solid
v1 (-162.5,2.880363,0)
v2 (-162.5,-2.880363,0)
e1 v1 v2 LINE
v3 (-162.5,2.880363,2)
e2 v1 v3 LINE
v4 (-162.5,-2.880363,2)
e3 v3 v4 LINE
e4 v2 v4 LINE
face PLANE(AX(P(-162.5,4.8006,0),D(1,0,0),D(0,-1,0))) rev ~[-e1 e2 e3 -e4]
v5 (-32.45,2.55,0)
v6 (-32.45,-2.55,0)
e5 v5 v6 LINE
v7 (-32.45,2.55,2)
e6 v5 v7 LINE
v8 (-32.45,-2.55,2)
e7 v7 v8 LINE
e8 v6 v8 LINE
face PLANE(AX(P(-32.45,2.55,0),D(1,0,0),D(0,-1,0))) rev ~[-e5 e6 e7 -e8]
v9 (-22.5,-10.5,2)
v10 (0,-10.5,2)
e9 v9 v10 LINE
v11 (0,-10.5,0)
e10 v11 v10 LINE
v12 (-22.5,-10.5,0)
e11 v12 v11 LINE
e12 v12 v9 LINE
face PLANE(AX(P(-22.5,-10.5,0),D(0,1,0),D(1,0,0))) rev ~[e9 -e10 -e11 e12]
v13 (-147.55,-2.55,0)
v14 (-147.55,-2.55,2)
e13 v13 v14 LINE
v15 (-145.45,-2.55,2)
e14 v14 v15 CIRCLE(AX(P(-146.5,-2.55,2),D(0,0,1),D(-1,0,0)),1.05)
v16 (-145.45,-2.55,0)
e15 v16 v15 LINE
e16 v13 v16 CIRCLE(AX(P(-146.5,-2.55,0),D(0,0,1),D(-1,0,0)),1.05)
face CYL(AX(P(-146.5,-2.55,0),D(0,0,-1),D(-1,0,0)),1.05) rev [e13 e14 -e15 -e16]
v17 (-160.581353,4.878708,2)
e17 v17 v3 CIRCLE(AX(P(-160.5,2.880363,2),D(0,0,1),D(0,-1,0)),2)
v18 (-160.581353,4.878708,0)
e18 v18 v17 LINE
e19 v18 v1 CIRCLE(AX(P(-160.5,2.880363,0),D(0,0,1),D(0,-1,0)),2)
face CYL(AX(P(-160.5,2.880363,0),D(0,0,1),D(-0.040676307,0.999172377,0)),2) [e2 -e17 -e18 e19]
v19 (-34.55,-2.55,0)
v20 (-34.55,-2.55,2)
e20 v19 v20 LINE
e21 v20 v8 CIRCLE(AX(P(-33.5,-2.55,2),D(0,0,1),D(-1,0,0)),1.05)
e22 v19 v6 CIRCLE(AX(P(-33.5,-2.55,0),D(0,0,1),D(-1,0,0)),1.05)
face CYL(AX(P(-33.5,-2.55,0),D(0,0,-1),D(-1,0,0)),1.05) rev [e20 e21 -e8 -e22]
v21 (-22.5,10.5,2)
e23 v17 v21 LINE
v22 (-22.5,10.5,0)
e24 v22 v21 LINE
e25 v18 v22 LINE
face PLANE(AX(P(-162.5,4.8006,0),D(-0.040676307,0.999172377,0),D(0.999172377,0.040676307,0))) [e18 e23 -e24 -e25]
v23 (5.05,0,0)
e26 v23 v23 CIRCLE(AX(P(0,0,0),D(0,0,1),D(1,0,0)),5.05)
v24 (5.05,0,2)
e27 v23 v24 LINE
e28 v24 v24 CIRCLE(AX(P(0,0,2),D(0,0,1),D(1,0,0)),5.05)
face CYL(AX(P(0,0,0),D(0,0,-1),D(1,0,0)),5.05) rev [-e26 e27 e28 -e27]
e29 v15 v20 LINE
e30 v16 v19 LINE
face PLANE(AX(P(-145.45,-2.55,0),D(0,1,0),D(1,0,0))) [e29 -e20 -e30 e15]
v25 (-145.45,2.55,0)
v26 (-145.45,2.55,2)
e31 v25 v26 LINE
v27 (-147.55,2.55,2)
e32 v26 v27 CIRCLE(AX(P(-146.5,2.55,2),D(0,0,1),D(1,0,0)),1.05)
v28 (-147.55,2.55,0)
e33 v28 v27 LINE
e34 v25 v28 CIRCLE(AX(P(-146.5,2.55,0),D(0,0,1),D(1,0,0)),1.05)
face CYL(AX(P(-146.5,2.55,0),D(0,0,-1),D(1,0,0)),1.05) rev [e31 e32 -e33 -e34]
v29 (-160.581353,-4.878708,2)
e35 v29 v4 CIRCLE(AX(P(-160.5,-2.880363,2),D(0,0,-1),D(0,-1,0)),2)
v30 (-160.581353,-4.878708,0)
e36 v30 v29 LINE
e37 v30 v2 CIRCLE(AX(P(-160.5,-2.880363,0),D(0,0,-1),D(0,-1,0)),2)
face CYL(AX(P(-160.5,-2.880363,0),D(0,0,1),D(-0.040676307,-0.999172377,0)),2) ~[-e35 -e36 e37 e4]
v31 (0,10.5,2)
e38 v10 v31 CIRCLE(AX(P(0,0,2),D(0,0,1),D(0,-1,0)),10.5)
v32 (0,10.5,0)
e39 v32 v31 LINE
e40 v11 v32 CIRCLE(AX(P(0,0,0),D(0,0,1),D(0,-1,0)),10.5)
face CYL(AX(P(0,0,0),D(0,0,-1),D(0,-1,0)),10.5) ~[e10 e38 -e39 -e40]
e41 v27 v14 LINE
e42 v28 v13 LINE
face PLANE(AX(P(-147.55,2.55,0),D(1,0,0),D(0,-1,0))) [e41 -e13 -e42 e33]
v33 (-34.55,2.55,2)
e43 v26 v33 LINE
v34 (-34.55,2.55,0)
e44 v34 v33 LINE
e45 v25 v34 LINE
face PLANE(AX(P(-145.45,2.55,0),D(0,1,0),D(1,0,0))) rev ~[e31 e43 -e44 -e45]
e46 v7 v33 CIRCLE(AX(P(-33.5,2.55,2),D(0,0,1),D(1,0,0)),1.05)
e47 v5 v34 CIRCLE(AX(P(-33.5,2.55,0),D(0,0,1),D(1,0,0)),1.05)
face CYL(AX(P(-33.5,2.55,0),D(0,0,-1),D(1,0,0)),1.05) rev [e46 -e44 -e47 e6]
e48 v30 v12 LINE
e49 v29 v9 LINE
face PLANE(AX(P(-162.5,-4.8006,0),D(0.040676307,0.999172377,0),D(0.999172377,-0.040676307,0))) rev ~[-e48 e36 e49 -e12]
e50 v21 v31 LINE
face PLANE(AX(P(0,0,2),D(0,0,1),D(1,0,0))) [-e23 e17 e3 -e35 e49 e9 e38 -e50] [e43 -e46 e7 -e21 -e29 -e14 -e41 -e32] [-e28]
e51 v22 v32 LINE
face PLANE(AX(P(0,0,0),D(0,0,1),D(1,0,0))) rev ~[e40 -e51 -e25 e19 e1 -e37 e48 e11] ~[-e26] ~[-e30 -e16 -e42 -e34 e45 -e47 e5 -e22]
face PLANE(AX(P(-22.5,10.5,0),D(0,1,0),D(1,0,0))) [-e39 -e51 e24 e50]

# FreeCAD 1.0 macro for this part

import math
import FreeCAD as App
import Part
import Sketcher
from FreeCAD import Vector
Q = App.Units.Quantity


def edges_at(feature, points):
    """Names of the edges that pass closest to the given points."""
    edges = feature.Shape.Edges
    near = lambda p: min(range(len(edges)), key=lambda i: edges[i].distToShape(Part.Vertex(*p))[0])
    return sorted({f"Edge{near(p) + 1}" for p in points})

doc = App.newDocument("Part")
body = doc.addObject("PartDesign::Body", "Body")

# Sketch on XY plane
sketch1 = body.newObject("Sketcher::SketchObject", "Sketch")
sketch1.AttachmentSupport = (doc.getObject("XY_Plane"), [""])
sketch1.MapMode = "FlatFace"
sketch1.addGeometry([
    Part.LineSegment(Vector(-22.5, 10.5, 0), Vector(-162.5, 4.8, 0)),  # 0
    Part.LineSegment(Vector(-162.5, 4.8, 0), Vector(-162.5, -4.8, 0)),  # 1
    Part.LineSegment(Vector(-162.5, -4.8, 0), Vector(-22.5, -10.5, 0)),  # 2
    Part.LineSegment(Vector(-22.5, -10.5, 0), Vector(0, -10.5, 0)),  # 3
    Part.ArcOfCircle(Part.Circle(Vector(0, 0, 0), Vector(0, 0, 1), 10.5), math.radians(-90), math.radians(90)),  # 4
    Part.LineSegment(Vector(0, 10.5, 0), Vector(-22.5, 10.5, 0)),  # 5
    Part.Circle(Vector(0, -8.5, 0), Vector(0, 0, 1), 1.4),  # 6
    Part.Circle(Vector(-157.5, 0, 0), Vector(0, 0, 1), 1.6),  # 7
    Part.LineSegment(Vector(-147.6, -2.5, 0), Vector(-147.6, 2.5, 0)),  # 8
    Part.ArcOfCircle(Part.Circle(Vector(-146.5, 2.5, 0), Vector(0, 0, 1), 1.1), math.radians(0), math.radians(180)),  # 9
    Part.LineSegment(Vector(-145.4, 2.5, 0), Vector(-34.5, 2.5, 0)),  # 10
    Part.ArcOfCircle(Part.Circle(Vector(-33.5, 2.5, 0), Vector(0, 0, 1), 1), math.radians(0), math.radians(180)),  # 11
    Part.LineSegment(Vector(-32.5, 2.5, 0), Vector(-32.5, -2.5, 0)),  # 12
    Part.ArcOfCircle(Part.Circle(Vector(-33.5, -2.5, 0), Vector(0, 0, 1), 1), math.radians(180), math.radians(360)),  # 13
    Part.LineSegment(Vector(-34.5, -2.5, 0), Vector(-145.4, -2.5, 0)),  # 14
    Part.ArcOfCircle(Part.Circle(Vector(-146.5, -2.5, 0), Vector(0, 0, 1), 1.1), math.radians(180), math.radians(360)),  # 15
    Part.Circle(Vector(-22.5, 0, 0), Vector(0, 0, 1), 1.6),  # 16
    Part.Circle(Vector(-8.5, 0, 0), Vector(0, 0, 1), 1.4),  # 17
    Part.Circle(Vector(0, 0, 0), Vector(0, 0, 1), 5),  # 18
    Part.Circle(Vector(8.5, 0, 0), Vector(0, 0, 1), 1.4),  # 19
    Part.Circle(Vector(0, 8.5, 0), Vector(0, 0, 1), 1.4),  # 20
], False)
sketch1.addConstraint([
    Sketcher.Constraint("Coincident", 0, 2, 1, 1),
    Sketcher.Constraint("Coincident", 1, 2, 2, 1),
    Sketcher.Constraint("Coincident", 2, 2, 3, 1),
    Sketcher.Constraint("Tangent", 3, 2, 4, 1),
    Sketcher.Constraint("Tangent", 4, 2, 5, 1),
    Sketcher.Constraint("Coincident", 5, 2, 0, 1),
    Sketcher.Constraint("Tangent", 8, 2, 9, 2),
    Sketcher.Constraint("Coincident", 9, 1, 10, 1),
    Sketcher.Constraint("Coincident", 10, 2, 11, 2),
    Sketcher.Constraint("Tangent", 11, 1, 12, 1),
    Sketcher.Constraint("Tangent", 12, 2, 13, 2),
    Sketcher.Constraint("Coincident", 13, 1, 14, 1),
    Sketcher.Constraint("Coincident", 14, 2, 15, 2),
    Sketcher.Constraint("Tangent", 15, 1, 8, 1),
    Sketcher.Constraint("Vertical", 1),
    Sketcher.Constraint("Horizontal", 3),
    Sketcher.Constraint("Horizontal", 5),
    Sketcher.Constraint("Vertical", 8),
    Sketcher.Constraint("Horizontal", 10),
    Sketcher.Constraint("Vertical", 12),
    Sketcher.Constraint("Horizontal", 14),
    Sketcher.Constraint("Coincident", 4, 3, -1, 1),
    Sketcher.Constraint("Coincident", 18, 3, -1, 1),
    Sketcher.Constraint("Equal", 9, 11),
    Sketcher.Constraint("Equal", 11, 13),
    Sketcher.Constraint("Equal", 13, 15),
    Sketcher.Constraint("Equal", 7, 16),
    Sketcher.Constraint("Equal", 6, 17),
    Sketcher.Constraint("Equal", 17, 19),
    Sketcher.Constraint("Equal", 19, 20),
    Sketcher.Constraint("Symmetric", 17, 3, 19, 3, -1, 1),
    Sketcher.Constraint("Symmetric", 6, 3, 20, 3, -1, 1),
    Sketcher.Constraint("PointOnObject", 6, 3, -2),
    Sketcher.Constraint("PointOnObject", 7, 3, -1),
    Sketcher.Constraint("PointOnObject", 16, 3, -1),
    Sketcher.Constraint("PointOnObject", 17, 3, -1),
    Sketcher.Constraint("Horizontal", 9, 3, 11, 3),
    Sketcher.Constraint("Horizontal", 13, 3, 15, 3),
    Sketcher.Constraint("Horizontal", 8, 2, 9, 1),
    Sketcher.Constraint("Horizontal", 12, 2, 13, 1),
    Sketcher.Constraint("Vertical", 16, 3, 2, 2),
    Sketcher.Constraint("Vertical", 2, 2, 5, 2),
    Sketcher.Constraint("Equal", 0, 2),
    Sketcher.Constraint("Diameter", 6, Q("2.7 mm")),
    Sketcher.Constraint("Diameter", 7, Q("3.1 mm")),
    Sketcher.Constraint("Diameter", 18, Q("10.1 mm")),
    Sketcher.Constraint("Radius", 4, Q("10.5 mm")),
    Sketcher.Constraint("Radius", 9, Q("1.05 mm")),
    Sketcher.Constraint("DistanceX", 0, 2, 7, 3, Q("5 mm")),
    Sketcher.Constraint("DistanceY", 6, 3, -1, 1, Q("8.5 mm")),
    Sketcher.Constraint("DistanceX", 17, 3, -1, 1, Q("8.5 mm")),
    Sketcher.Constraint("DistanceX", 0, 2, -1, 1, Q("162.5 mm")),
    Sketcher.Constraint("DistanceX", 3, 1, 3, 2, Q("22.5 mm")),
    Sketcher.Constraint("DistanceX", 10, 1, 10, 2, Q("110.9 mm")),
    Sketcher.Constraint("DistanceY", 8, 1, 8, 2, Q("5.1 mm")),
    Sketcher.Constraint("DistanceX", 7, 3, 9, 3, Q("11 mm")),
    Sketcher.Constraint("DistanceY", -1, 1, 9, 3, Q("2.55 mm")),
    Sketcher.Constraint("Distance", 0, Q("140.116 mm")),
])
pad1 = body.newObject("PartDesign::Pad", "Pad")
pad1.Profile = sketch1
pad1.Length = 2
doc.recompute()

fillet = body.newObject("PartDesign::Fillet", "Fillet")
fillet.Base = (pad1, edges_at(pad1, [(-162.5, -4.801, 1), (-162.5, 4.801, 1)]))
fillet.Radius = 2

# Sketch on XY plane
sketch2 = body.newObject("Sketcher::SketchObject", "Sketch001")
sketch2.AttachmentSupport = (doc.getObject("XY_Plane"), [""])
sketch2.MapMode = "FlatFace"
sketch2.addGeometry([
    Part.Circle(Vector(-22.5, 0, 0), Vector(0, 0, 1), 1.6),  # 0
    Part.Circle(Vector(-8.5, 0, 0), Vector(0, 0, 1), 1.4),  # 1
    Part.Circle(Vector(0, -8.5, 0), Vector(0, 0, 1), 1.4),  # 2
    Part.Circle(Vector(8.5, 0, 0), Vector(0, 0, 1), 1.4),  # 3
    Part.Circle(Vector(0, 8.5, 0), Vector(0, 0, 1), 1.4),  # 4
    Part.Circle(Vector(-157.5, 0, 0), Vector(0, 0, 1), 1.6),  # 5
], False)
sketch2.addConstraint([
    Sketcher.Constraint("Equal", 1, 2),
    Sketcher.Constraint("Equal", 2, 3),
    Sketcher.Constraint("Equal", 3, 4),
    Sketcher.Constraint("Equal", 0, 5),
    Sketcher.Constraint("Symmetric", 1, 3, 3, 3, -1, 1),
    Sketcher.Constraint("Symmetric", 2, 3, 4, 3, -1, 1),
    Sketcher.Constraint("PointOnObject", 0, 3, -1),
    Sketcher.Constraint("PointOnObject", 1, 3, -1),
    Sketcher.Constraint("PointOnObject", 2, 3, -2),
    Sketcher.Constraint("PointOnObject", 5, 3, -1),
    Sketcher.Constraint("Diameter", 0, Q("3.1 mm")),
    Sketcher.Constraint("Diameter", 1, Q("2.7 mm")),
    Sketcher.Constraint("DistanceX", 0, 3, 1, 3, Q("14 mm")),
    Sketcher.Constraint("DistanceX", 1, 3, 3, 3, Q("17 mm")),
    Sketcher.Constraint("DistanceY", 2, 3, 4, 3, Q("17 mm")),
    Sketcher.Constraint("DistanceX", 5, 3, 0, 3, Q("135 mm")),
])
pad2 = body.newObject("PartDesign::Pad", "Pad001")
pad2.Profile = sketch2
pad2.Length = 2

doc.recompute()
